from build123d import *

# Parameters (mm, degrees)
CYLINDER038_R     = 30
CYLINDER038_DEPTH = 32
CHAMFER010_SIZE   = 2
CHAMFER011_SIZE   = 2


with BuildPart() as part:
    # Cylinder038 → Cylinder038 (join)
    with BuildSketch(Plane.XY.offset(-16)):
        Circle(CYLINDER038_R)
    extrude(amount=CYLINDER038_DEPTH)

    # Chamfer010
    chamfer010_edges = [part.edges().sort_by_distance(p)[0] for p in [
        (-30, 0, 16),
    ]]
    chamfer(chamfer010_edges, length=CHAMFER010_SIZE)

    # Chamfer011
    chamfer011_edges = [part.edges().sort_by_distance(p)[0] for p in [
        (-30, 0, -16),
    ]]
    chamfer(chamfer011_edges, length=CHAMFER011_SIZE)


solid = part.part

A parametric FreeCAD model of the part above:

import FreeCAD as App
import Part
import Sketcher
from FreeCAD import Vector


def edges_at(feature, points):
    """Names of the edges that pass closest to the given points."""
    edges = feature.Shape.Edges
    near = lambda p: min(range(len(edges)), key=lambda i: edges[i].distToShape(Part.Vertex(*p))[0])
    return sorted({f"Edge{near(p) + 1}" for p in points})

doc = App.newDocument("Part")
params = doc.addObject("Spreadsheet::Sheet", "Params")
for row, (alias, value) in enumerate([
    ("sketch1_diameter", "60 mm"),
    ("pad1_length", "32 mm"),
    ("chamfer_size", "2 mm"),
    ("chamfer2_size", "2 mm"),
], start=1):
    params.set(f"A{row}", alias)
    params.set(f"B{row}", "=" + value)
    params.setAlias(f"B{row}", alias)

body = doc.addObject("PartDesign::Body", "Body")

sketch1 = body.newObject("Sketcher::SketchObject", "Sketch")
sketch1.AttachmentSupport = (doc.getObject("XY_Plane"), [""])
sketch1.MapMode = "FlatFace"
sketch1.AttachmentOffset = App.Placement(Vector(0, 0, -16), App.Rotation())
sketch1.addGeometry(Part.Circle(Vector(0, 0, 0), Vector(0, 0, 1), 30), False)
sketch1.addConstraint(Sketcher.Constraint("Coincident", 0, 3, -1, 1))
sketch1.addConstraint(Sketcher.Constraint("Diameter", 0, 60.0))
sketch1.setExpression("Constraints[1]", "Params.sketch1_diameter")
pad1 = body.newObject("PartDesign::Pad", "Pad")
pad1.Profile = sketch1
pad1.setExpression("Length", "Params.pad1_length")
doc.recompute()

chamfer = body.newObject("PartDesign::Chamfer", "Chamfer")
chamfer.Base = (pad1, edges_at(pad1, [(-30, 0, 16)]))
chamfer.setExpression("Size", "Params.chamfer_size")
doc.recompute()

chamfer2 = body.newObject("PartDesign::Chamfer", "Chamfer001")
chamfer2.Base = (chamfer, edges_at(chamfer, [(-30, 0, -16)]))
chamfer2.setExpression("Size", "Params.chamfer2_size")

doc.recompute()
